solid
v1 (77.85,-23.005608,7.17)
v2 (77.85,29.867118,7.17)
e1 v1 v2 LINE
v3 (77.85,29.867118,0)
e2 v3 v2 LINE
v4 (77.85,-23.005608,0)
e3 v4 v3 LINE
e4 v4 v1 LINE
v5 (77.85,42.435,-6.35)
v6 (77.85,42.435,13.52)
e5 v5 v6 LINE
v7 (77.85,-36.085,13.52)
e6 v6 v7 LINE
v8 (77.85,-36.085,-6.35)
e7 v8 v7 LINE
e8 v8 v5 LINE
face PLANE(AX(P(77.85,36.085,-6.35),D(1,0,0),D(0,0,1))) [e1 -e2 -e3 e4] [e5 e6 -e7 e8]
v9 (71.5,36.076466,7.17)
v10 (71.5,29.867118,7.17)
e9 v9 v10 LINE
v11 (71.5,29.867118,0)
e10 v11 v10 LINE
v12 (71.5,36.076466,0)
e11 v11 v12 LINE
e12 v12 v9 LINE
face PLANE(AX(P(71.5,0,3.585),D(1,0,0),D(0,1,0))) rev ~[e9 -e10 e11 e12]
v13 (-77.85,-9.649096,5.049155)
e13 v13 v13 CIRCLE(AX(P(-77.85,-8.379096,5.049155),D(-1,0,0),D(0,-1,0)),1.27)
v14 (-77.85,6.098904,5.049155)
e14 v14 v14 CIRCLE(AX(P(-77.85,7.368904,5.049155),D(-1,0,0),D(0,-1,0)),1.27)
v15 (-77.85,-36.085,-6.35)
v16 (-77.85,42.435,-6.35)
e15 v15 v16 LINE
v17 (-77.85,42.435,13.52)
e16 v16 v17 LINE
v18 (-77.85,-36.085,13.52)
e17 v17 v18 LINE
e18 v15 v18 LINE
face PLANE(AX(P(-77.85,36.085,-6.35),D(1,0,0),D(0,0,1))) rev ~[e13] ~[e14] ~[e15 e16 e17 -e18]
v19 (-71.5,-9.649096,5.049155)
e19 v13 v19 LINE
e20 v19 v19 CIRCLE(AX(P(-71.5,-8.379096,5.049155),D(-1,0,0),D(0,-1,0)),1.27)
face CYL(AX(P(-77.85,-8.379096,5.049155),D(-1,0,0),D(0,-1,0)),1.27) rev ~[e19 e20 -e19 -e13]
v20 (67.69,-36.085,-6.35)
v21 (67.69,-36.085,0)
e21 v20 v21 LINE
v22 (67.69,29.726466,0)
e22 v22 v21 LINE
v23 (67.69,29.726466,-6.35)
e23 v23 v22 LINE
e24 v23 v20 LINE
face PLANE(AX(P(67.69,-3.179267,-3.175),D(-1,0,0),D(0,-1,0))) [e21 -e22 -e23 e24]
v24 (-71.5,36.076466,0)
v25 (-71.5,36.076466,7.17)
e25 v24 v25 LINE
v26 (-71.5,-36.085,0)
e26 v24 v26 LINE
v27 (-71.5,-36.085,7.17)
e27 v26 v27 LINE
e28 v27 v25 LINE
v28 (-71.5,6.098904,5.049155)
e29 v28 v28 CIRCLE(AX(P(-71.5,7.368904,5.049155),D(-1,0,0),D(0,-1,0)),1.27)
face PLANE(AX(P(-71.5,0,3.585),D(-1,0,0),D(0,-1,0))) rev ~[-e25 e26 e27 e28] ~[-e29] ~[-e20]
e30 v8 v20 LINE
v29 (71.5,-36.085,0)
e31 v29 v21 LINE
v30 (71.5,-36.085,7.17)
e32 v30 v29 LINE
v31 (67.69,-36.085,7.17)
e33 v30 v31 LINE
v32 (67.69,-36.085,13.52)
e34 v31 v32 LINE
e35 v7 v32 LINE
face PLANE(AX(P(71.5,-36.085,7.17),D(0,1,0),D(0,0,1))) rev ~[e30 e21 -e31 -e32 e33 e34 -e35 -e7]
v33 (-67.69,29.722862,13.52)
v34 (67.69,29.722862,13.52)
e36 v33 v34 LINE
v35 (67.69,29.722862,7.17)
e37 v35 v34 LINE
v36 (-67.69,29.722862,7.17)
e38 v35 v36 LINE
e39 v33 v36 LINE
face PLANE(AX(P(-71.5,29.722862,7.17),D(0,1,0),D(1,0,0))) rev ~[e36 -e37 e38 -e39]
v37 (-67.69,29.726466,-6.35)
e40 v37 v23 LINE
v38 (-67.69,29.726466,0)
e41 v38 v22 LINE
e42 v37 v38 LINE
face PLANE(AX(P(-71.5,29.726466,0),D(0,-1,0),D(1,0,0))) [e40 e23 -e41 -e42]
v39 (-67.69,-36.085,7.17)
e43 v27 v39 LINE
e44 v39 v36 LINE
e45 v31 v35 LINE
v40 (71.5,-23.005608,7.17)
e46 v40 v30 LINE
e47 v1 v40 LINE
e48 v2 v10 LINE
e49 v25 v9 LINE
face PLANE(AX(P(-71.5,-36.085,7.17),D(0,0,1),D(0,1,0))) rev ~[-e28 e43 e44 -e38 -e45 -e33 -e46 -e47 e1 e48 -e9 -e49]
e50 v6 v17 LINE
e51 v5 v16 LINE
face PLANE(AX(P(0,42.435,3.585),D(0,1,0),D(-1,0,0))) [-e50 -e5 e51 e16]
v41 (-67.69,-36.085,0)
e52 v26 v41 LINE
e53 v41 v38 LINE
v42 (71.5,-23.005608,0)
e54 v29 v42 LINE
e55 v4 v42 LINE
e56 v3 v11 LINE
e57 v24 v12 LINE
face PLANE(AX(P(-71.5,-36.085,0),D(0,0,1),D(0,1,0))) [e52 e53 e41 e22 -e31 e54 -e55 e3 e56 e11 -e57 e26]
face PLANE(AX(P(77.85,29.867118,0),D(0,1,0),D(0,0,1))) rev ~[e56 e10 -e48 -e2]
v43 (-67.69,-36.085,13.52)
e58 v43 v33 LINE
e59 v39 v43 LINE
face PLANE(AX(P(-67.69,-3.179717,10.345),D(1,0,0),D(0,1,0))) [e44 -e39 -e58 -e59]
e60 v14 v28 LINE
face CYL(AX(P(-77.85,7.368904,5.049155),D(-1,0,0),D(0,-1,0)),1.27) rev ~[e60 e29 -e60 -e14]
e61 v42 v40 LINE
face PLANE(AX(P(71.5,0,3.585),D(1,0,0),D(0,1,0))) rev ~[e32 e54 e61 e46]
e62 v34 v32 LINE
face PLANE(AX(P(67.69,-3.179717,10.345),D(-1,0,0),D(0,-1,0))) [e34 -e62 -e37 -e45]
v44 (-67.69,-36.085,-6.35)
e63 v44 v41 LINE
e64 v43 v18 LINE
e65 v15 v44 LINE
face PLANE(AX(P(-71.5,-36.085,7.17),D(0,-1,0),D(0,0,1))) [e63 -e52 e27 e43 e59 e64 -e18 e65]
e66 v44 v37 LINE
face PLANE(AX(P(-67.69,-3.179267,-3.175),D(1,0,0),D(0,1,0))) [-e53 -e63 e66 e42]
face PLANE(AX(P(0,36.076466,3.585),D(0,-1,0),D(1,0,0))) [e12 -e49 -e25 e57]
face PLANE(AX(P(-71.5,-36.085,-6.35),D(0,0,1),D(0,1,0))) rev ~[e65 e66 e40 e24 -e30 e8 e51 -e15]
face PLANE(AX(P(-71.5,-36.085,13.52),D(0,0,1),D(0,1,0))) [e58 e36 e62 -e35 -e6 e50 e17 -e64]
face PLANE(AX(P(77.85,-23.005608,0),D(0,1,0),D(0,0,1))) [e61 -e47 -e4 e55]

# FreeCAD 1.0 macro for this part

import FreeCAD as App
import Part
import Sketcher
from FreeCAD import Vector
Q = App.Units.Quantity


def add_polygon(sketch, points):
    """Adds a closed chain of lines whose ends are joined by coincident constraints."""
    first, n = sketch.GeometryCount, len(points)
    for a, b in zip(points, points[1:] + points[:1]):
        sketch.addGeometry(Part.LineSegment(App.Vector(*a, 0), App.Vector(*b, 0)), False)
    for i in range(n):
        sketch.addConstraint(Sketcher.Constraint("Coincident", first + i, 2, first + (i + 1) % n, 1))

doc = App.newDocument("Part")
params = doc.addObject("Spreadsheet::Sheet", "Params")
for row, (alias, value) in enumerate([
    ("pad1_length", "7.17 mm"),
    ("pad2_length", "0.25 in"),
    ("pad3_length", "0.25 in"),
    ("pad4_length", "0.25 in"),
    ("pad5_length", "0.25 in"),
    ("pad6_length", "0.25 in"),
    ("pocket1_length", "65.811466 mm"),
    ("pocket2_length", "0.25 in"),
    ("sketch9_height", "0.25 in"),
    ("pad7_length", "0.15 in"),
    ("sketch10_height", "0.25 in"),
    ("pad8_length", "0.15 in"),
    ("sketch11_height", "0.25 in"),
    ("pad9_length", "0.15 in"),
    ("sketch12_height", "0.25 in"),
    ("pad10_length", "0.15 in"),
    ("pocket3_length", "1 in"),
    ("sketch14_diameter", "0.1 in"),
], start=1):
    params.set(f"A{row}", alias)
    params.set(f"B{row}", "=" + value)
    params.setAlias(f"B{row}", alias)

body = doc.addObject("PartDesign::Body", "Body")

sketch1 = body.newObject("Sketcher::SketchObject", "Sketch")
sketch1.AttachmentSupport = (doc.getObject("XY_Plane"), [""])
sketch1.MapMode = "FlatFace"
add_polygon(sketch1, [(-71.5, 36.085), (-71.5, -36.085), (71.5, -36.085), (71.5, 36.085)])
sketch1.addConstraint(Sketcher.Constraint("Vertical", 0))
sketch1.addConstraint(Sketcher.Constraint("Horizontal", 1))
sketch1.addConstraint(Sketcher.Constraint("Vertical", 2))
sketch1.addConstraint(Sketcher.Constraint("Horizontal", 3))
sketch1.addConstraint(Sketcher.Constraint("Symmetric", 0, 2, 2, 2, -1, 1))
sketch1.addConstraint(Sketcher.Constraint("DistanceX", 1, 1, 1, 2, 143.0))
sketch1.addConstraint(Sketcher.Constraint("DistanceY", 0, 2, 0, 1, 72.17))
pad1 = body.newObject("PartDesign::Pad", "Pad")
pad1.Profile = sketch1
pad1.setExpression("Length", "Params.pad1_length")

sketch2 = body.newObject("Sketcher::SketchObject", "Sketch001")
sketch2.AttachmentSupport = (doc.getObject("YZ_Plane"), [""])
sketch2.MapMode = "FlatFace"
sketch2.AttachmentOffset = App.Placement(Vector(0, 0, 71.5), App.Rotation())
add_polygon(sketch2, [(-36.085, 13.52), (-36.085, -6.35), (36.085, -6.35), (36.085, 13.52)])
sketch2.addConstraint(Sketcher.Constraint("Vertical", 0))
sketch2.addConstraint(Sketcher.Constraint("Horizontal", 1))
sketch2.addConstraint(Sketcher.Constraint("Vertical", 2))
sketch2.addConstraint(Sketcher.Constraint("Horizontal", 3))
sketch2.addConstraint(Sketcher.Constraint("DistanceY", 0, 2, -1, 1, Q("0.25 in")))
sketch2.addConstraint(Sketcher.Constraint("DistanceX", 1, 1, 1, 2, 72.17))
sketch2.addConstraint(Sketcher.Constraint("DistanceY", 0, 2, 0, 1, 19.87))
sketch2.addConstraint(Sketcher.Constraint("DistanceX", 0, 2, -1, 1, 36.085))
pad2 = body.newObject("PartDesign::Pad", "Pad001")
pad2.Profile = sketch2
pad2.setExpression("Length", "Params.pad2_length")

sketch3 = body.newObject("Sketcher::SketchObject", "Sketch002")
sketch3.AttachmentSupport = (doc.getObject("YZ_Plane"), [""])
sketch3.MapMode = "FlatFace"
sketch3.AttachmentOffset = App.Placement(Vector(0, 0, -71.5), App.Rotation())
add_polygon(sketch3, [(36.085, 13.52), (36.085, -6.35), (-36.085, -6.35), (-36.085, 13.52)])
sketch3.addConstraint(Sketcher.Constraint("Vertical", 0))
sketch3.addConstraint(Sketcher.Constraint("Horizontal", 1))
sketch3.addConstraint(Sketcher.Constraint("Vertical", 2))
sketch3.addConstraint(Sketcher.Constraint("Horizontal", 3))
sketch3.addConstraint(Sketcher.Constraint("DistanceY", 0, 2, -1, 1, Q("0.25 in")))
sketch3.addConstraint(Sketcher.Constraint("DistanceX", 1, 2, 1, 1, 72.17))
sketch3.addConstraint(Sketcher.Constraint("DistanceY", 0, 2, 0, 1, 19.87))
sketch3.addConstraint(Sketcher.Constraint("DistanceX", -1, 1, 0, 2, 36.085))
pad3 = body.newObject("PartDesign::Pad", "Pad002")
pad3.Profile = sketch3
pad3.setExpression("Length", "Params.pad3_length")
pad3.Reversed = True

sketch4 = body.newObject("Sketcher::SketchObject", "Sketch003")
sketch4.AttachmentSupport = (doc.getObject("XY_Plane"), [""])
sketch4.MapMode = "FlatFace"
sketch4.AttachmentOffset = App.Placement(Vector(0, 0, 7.17), App.Rotation())
add_polygon(sketch4, [(-71.5, 36.085), (-71.5, 29.722862), (71.5, 29.722862), (71.5, 36.085)])
sketch4.addConstraint(Sketcher.Constraint("Vertical", 0))
sketch4.addConstraint(Sketcher.Constraint("Horizontal", 1))
sketch4.addConstraint(Sketcher.Constraint("Vertical", 2))
sketch4.addConstraint(Sketcher.Constraint("Horizontal", 3))
sketch4.addConstraint(Sketcher.Constraint("DistanceX", 1, 1, 1, 2, 143.0))
sketch4.addConstraint(Sketcher.Constraint("DistanceY", 0, 2, 0, 1, 6.362138))
sketch4.addConstraint(Sketcher.Constraint("DistanceX", 0, 2, -1, 1, 71.5))
sketch4.addConstraint(Sketcher.Constraint("DistanceY", -1, 1, 2, 2, 36.085))
pad4 = body.newObject("PartDesign::Pad", "Pad003")
pad4.Profile = sketch4
pad4.setExpression("Length", "Params.pad4_length")

sketch5 = body.newObject("Sketcher::SketchObject", "Sketch004")
sketch5.AttachmentSupport = (doc.getObject("XY_Plane"), [""])
sketch5.MapMode = "FlatFace"
add_polygon(sketch5, [(-71.5, 29.726466), (-71.5, 36.085), (71.5, 36.085), (71.5, 29.726466)])
sketch5.addConstraint(Sketcher.Constraint("Vertical", 0))
sketch5.addConstraint(Sketcher.Constraint("Horizontal", 1))
sketch5.addConstraint(Sketcher.Constraint("Vertical", 2))
sketch5.addConstraint(Sketcher.Constraint("Horizontal", 3))
sketch5.addConstraint(Sketcher.Constraint("DistanceX", 1, 1, 1, 2, 143.0))
sketch5.addConstraint(Sketcher.Constraint("DistanceX", 0, 2, -1, 1, 71.5))
sketch5.addConstraint(Sketcher.Constraint("DistanceY", -1, 1, 0, 2, 36.085))
sketch5.addConstraint(Sketcher.Constraint("DistanceY", 0, 1, 0, 2, 6.358534))
pad5 = body.newObject("PartDesign::Pad", "Pad004")
pad5.Profile = sketch5
pad5.setExpression("Length", "Params.pad5_length")
pad5.Reversed = True

sketch6 = body.newObject("Sketcher::SketchObject", "Sketch005")
sketch6.AttachmentSupport = (doc.getObject("XZ_Plane"), [""])
sketch6.MapMode = "FlatFace"
sketch6.AttachmentOffset = App.Placement(Vector(0, 0, -36.085), App.Rotation())
add_polygon(sketch6, [(77.85, 13.52), (77.85, -6.35), (-77.85, -6.35), (-77.85, 13.52)])
sketch6.addConstraint(Sketcher.Constraint("Vertical", 0))
sketch6.addConstraint(Sketcher.Constraint("Horizontal", 1))
sketch6.addConstraint(Sketcher.Constraint("Vertical", 2))
sketch6.addConstraint(Sketcher.Constraint("Horizontal", 3))
sketch6.addConstraint(Sketcher.Constraint("DistanceY", 0, 2, -1, 1, Q("0.25 in")))
sketch6.addConstraint(Sketcher.Constraint("DistanceX", 1, 2, 1, 1, 155.7))
sketch6.addConstraint(Sketcher.Constraint("DistanceY", 0, 2, 0, 1, 19.87))
sketch6.addConstraint(Sketcher.Constraint("DistanceX", -1, 1, 0, 2, 77.85))
pad6 = body.newObject("PartDesign::Pad", "Pad005")
pad6.Profile = sketch6
pad6.setExpression("Length", "Params.pad6_length")
pad6.Reversed = True

sketch7 = body.newObject("Sketcher::SketchObject", "Sketch006")
sketch7.AttachmentSupport = (doc.getObject("XZ_Plane"), [""])
sketch7.MapMode = "FlatFace"
sketch7.AttachmentOffset = App.Placement(Vector(0, 0, 36.085), App.Rotation())
add_polygon(sketch7, [(-71.5, 7.17), (-71.5, 0), (71.5, 0), (71.5, 7.17)])
sketch7.addConstraint(Sketcher.Constraint("Vertical", 0))
sketch7.addConstraint(Sketcher.Constraint("Horizontal", 1))
sketch7.addConstraint(Sketcher.Constraint("Vertical", 2))
sketch7.addConstraint(Sketcher.Constraint("Horizontal", 3))
sketch7.addConstraint(Sketcher.Constraint("Symmetric", 0, 2, 1, 2, -1, 1))
sketch7.addConstraint(Sketcher.Constraint("DistanceX", 1, 1, 1, 2, 143.0))
sketch7.addConstraint(Sketcher.Constraint("DistanceY", 0, 2, 0, 1, 7.17))
pocket1 = body.newObject("PartDesign::Pocket", "Pocket")
pocket1.Profile = sketch7
pocket1.setExpression("Length", "Params.pocket1_length")

sketch8 = body.newObject("Sketcher::SketchObject", "Sketch007")
sketch8.AttachmentSupport = (doc.getObject("XZ_Plane"), [""])
sketch8.MapMode = "FlatFace"
sketch8.AttachmentOffset = App.Placement(Vector(0, 0, -29.726466), App.Rotation())
add_polygon(sketch8, [(-71.5, 7.17), (-71.5, 0), (71.5, 0), (71.5, 7.17)])
sketch8.addConstraint(Sketcher.Constraint("Vertical", 0))
sketch8.addConstraint(Sketcher.Constraint("Horizontal", 1))
sketch8.addConstraint(Sketcher.Constraint("Vertical", 2))
sketch8.addConstraint(Sketcher.Constraint("Horizontal", 3))
sketch8.addConstraint(Sketcher.Constraint("Symmetric", 0, 2, 1, 2, -1, 1))
sketch8.addConstraint(Sketcher.Constraint("DistanceX", 1, 1, 1, 2, 143.0))
sketch8.addConstraint(Sketcher.Constraint("DistanceY", 0, 2, 0, 1, 7.17))
pocket2 = body.newObject("PartDesign::Pocket", "Pocket001")
pocket2.Profile = sketch8
pocket2.setExpression("Length", "Params.pocket2_length")

sketch9 = body.newObject("Sketcher::SketchObject", "Sketch008")
sketch9.AttachmentSupport = (doc.getObject("YZ_Plane"), [""])
sketch9.MapMode = "FlatFace"
sketch9.AttachmentOffset = App.Placement(Vector(0, 0, 71.5), App.Rotation())
add_polygon(sketch9, [(29.726466, 0), (29.726466, -6.35), (-36.085, -6.35), (-36.085, 0)])
sketch9.addConstraint(Sketcher.Constraint("Vertical", 0))
sketch9.addConstraint(Sketcher.Constraint("Horizontal", 1))
sketch9.addConstraint(Sketcher.Constraint("Vertical", 2))
sketch9.addConstraint(Sketcher.Constraint("Horizontal", 3))
sketch9.addConstraint(Sketcher.Constraint("PointOnObject", 2, 2, -1))
sketch9.addConstraint(Sketcher.Constraint("DistanceY", 0, 2, 0, 1, Q("0.25 in")))
sketch9.addConstraint(Sketcher.Constraint("DistanceX", 1, 2, -1, 1, 36.085))
sketch9.addConstraint(Sketcher.Constraint("DistanceX", 1, 2, 1, 1, 65.811466))
sketch9.setExpression("Constraints[9]", "Params.sketch9_height")
pad7 = body.newObject("PartDesign::Pad", "Pad006")
pad7.Profile = sketch9
pad7.setExpression("Length", "Params.pad7_length")
pad7.Reversed = True

sketch10 = body.newObject("Sketcher::SketchObject", "Sketch009")
sketch10.AttachmentSupport = (doc.getObject("YZ_Plane"), [""])
sketch10.MapMode = "FlatFace"
sketch10.AttachmentOffset = App.Placement(Vector(0, 0, 71.5), App.Rotation())
add_polygon(sketch10, [(29.725565, 13.52), (29.725565, 7.17), (-36.085, 7.17), (-36.085, 13.52)])
sketch10.addConstraint(Sketcher.Constraint("Vertical", 0))
sketch10.addConstraint(Sketcher.Constraint("Horizontal", 1))
sketch10.addConstraint(Sketcher.Constraint("Vertical", 2))
sketch10.addConstraint(Sketcher.Constraint("Horizontal", 3))
sketch10.addConstraint(Sketcher.Constraint("DistanceY", 0, 2, 0, 1, Q("0.25 in")))
sketch10.addConstraint(Sketcher.Constraint("DistanceY", -1, 1, 0, 2, 7.17))
sketch10.addConstraint(Sketcher.Constraint("DistanceX", 1, 2, -1, 1, 36.085))
sketch10.addConstraint(Sketcher.Constraint("DistanceX", 1, 2, 1, 1, 65.810565))
sketch10.setExpression("Constraints[8]", "Params.sketch10_height")
pad8 = body.newObject("PartDesign::Pad", "Pad007")
pad8.Profile = sketch10
pad8.setExpression("Length", "Params.pad8_length")
pad8.Reversed = True

sketch11 = body.newObject("Sketcher::SketchObject", "Sketch010")
sketch11.AttachmentSupport = (doc.getObject("YZ_Plane"), [""])
sketch11.MapMode = "FlatFace"
sketch11.AttachmentOffset = App.Placement(Vector(0, 0, -71.5), App.Rotation())
add_polygon(sketch11, [(-36.085, 0), (-36.085, -6.35), (29.726466, -6.35), (29.726466, 0)])
sketch11.addConstraint(Sketcher.Constraint("Vertical", 0))
sketch11.addConstraint(Sketcher.Constraint("Horizontal", 1))
sketch11.addConstraint(Sketcher.Constraint("Vertical", 2))
sketch11.addConstraint(Sketcher.Constraint("Horizontal", 3))
sketch11.addConstraint(Sketcher.Constraint("PointOnObject", 2, 2, -1))
sketch11.addConstraint(Sketcher.Constraint("DistanceY", 0, 2, 0, 1, Q("0.25 in")))
sketch11.addConstraint(Sketcher.Constraint("DistanceX", 0, 2, -1, 1, 36.085))
sketch11.addConstraint(Sketcher.Constraint("DistanceX", 1, 1, 1, 2, 65.811466))
sketch11.setExpression("Constraints[9]", "Params.sketch11_height")
pad9 = body.newObject("PartDesign::Pad", "Pad008")
pad9.Profile = sketch11
pad9.setExpression("Length", "Params.pad9_length")

sketch12 = body.newObject("Sketcher::SketchObject", "Sketch011")
sketch12.AttachmentSupport = (doc.getObject("YZ_Plane"), [""])
sketch12.MapMode = "FlatFace"
sketch12.AttachmentOffset = App.Placement(Vector(0, 0, -71.5), App.Rotation())
add_polygon(sketch12, [(-36.085, 13.52), (-36.085, 7.17), (29.725565, 7.17), (29.725565, 13.52)])
sketch12.addConstraint(Sketcher.Constraint("Vertical", 0))
sketch12.addConstraint(Sketcher.Constraint("Horizontal", 1))
sketch12.addConstraint(Sketcher.Constraint("Vertical", 2))
sketch12.addConstraint(Sketcher.Constraint("Horizontal", 3))
sketch12.addConstraint(Sketcher.Constraint("DistanceY", 0, 2, 0, 1, Q("0.25 in")))
sketch12.addConstraint(Sketcher.Constraint("DistanceX", 0, 2, -1, 1, 36.085))
sketch12.addConstraint(Sketcher.Constraint("DistanceY", -1, 1, 0, 2, 7.17))
sketch12.addConstraint(Sketcher.Constraint("DistanceX", 1, 1, 1, 2, 65.810565))
sketch12.setExpression("Constraints[8]", "Params.sketch12_height")
pad10 = body.newObject("PartDesign::Pad", "Pad009")
pad10.Profile = sketch12
pad10.setExpression("Length", "Params.pad10_length")

sketch13 = body.newObject("Sketcher::SketchObject", "Sketch012")
sketch13.AttachmentSupport = (doc.getObject("YZ_Plane"), [""])
sketch13.MapMode = "FlatFace"
sketch13.AttachmentOffset = App.Placement(Vector(0, 0, 77.85), App.Rotation())
add_polygon(sketch13, [(-23.005608, 7.17), (-23.005608, 0), (29.867118, 0), (29.867118, 7.17)])
sketch13.addConstraint(Sketcher.Constraint("Vertical", 0))
sketch13.addConstraint(Sketcher.Constraint("Horizontal", 1))
sketch13.addConstraint(Sketcher.Constraint("Vertical", 2))
sketch13.addConstraint(Sketcher.Constraint("Horizontal", 3))
sketch13.addConstraint(Sketcher.Constraint("PointOnObject", 0, 2, -1))
sketch13.addConstraint(Sketcher.Constraint("DistanceY", 0, 2, 0, 1, 7.17))
sketch13.addConstraint(Sketcher.Constraint("DistanceX", 1, 1, 1, 2, 52.872727))
sketch13.addConstraint(Sketcher.Constraint("DistanceX", 0, 2, -1, 1, 23.005608))
pocket3 = body.newObject("PartDesign::Pocket", "Pocket002")
pocket3.Profile = sketch13
pocket3.setExpression("Length", "Params.pocket3_length")

sketch14 = body.newObject("Sketcher::SketchObject", "Sketch013")
sketch14.AttachmentSupport = (doc.getObject("YZ_Plane"), [""])
sketch14.MapMode = "FlatFace"
sketch14.AttachmentOffset = App.Placement(Vector(0, 0, -77.85), App.Rotation())
sketch14.addGeometry(Part.Circle(Vector(7.368904, 5.049155, 0), Vector(0, 0, 1), 1.27), False)
sketch14.addGeometry(Part.Circle(Vector(-8.379096, 5.049155, 0), Vector(0, 0, 1), 1.27), False)
sketch14.addConstraint(Sketcher.Constraint("Equal", 0, 1))
sketch14.addConstraint(Sketcher.Constraint("Horizontal", 0, 3, 1, 3))
sketch14.addConstraint(Sketcher.Constraint("Diameter", 0, Q("0.1 in")))
sketch14.addConstraint(Sketcher.Constraint("DistanceX", 1, 3, 0, 3, Q("0.62 in")))
sketch14.addConstraint(Sketcher.Constraint("DistanceX", -1, 1, 0, 3, 7.368904))
sketch14.addConstraint(Sketcher.Constraint("DistanceY", -1, 1, 0, 3, 5.049155))
sketch14.setExpression("Constraints[2]", "Params.sketch14_diameter")
pocket4 = body.newObject("PartDesign::Pocket", "Pocket003")
pocket4.Profile = sketch14
pocket4.Type = "ThroughAll"
pocket4.Reversed = True

doc.recompute()
